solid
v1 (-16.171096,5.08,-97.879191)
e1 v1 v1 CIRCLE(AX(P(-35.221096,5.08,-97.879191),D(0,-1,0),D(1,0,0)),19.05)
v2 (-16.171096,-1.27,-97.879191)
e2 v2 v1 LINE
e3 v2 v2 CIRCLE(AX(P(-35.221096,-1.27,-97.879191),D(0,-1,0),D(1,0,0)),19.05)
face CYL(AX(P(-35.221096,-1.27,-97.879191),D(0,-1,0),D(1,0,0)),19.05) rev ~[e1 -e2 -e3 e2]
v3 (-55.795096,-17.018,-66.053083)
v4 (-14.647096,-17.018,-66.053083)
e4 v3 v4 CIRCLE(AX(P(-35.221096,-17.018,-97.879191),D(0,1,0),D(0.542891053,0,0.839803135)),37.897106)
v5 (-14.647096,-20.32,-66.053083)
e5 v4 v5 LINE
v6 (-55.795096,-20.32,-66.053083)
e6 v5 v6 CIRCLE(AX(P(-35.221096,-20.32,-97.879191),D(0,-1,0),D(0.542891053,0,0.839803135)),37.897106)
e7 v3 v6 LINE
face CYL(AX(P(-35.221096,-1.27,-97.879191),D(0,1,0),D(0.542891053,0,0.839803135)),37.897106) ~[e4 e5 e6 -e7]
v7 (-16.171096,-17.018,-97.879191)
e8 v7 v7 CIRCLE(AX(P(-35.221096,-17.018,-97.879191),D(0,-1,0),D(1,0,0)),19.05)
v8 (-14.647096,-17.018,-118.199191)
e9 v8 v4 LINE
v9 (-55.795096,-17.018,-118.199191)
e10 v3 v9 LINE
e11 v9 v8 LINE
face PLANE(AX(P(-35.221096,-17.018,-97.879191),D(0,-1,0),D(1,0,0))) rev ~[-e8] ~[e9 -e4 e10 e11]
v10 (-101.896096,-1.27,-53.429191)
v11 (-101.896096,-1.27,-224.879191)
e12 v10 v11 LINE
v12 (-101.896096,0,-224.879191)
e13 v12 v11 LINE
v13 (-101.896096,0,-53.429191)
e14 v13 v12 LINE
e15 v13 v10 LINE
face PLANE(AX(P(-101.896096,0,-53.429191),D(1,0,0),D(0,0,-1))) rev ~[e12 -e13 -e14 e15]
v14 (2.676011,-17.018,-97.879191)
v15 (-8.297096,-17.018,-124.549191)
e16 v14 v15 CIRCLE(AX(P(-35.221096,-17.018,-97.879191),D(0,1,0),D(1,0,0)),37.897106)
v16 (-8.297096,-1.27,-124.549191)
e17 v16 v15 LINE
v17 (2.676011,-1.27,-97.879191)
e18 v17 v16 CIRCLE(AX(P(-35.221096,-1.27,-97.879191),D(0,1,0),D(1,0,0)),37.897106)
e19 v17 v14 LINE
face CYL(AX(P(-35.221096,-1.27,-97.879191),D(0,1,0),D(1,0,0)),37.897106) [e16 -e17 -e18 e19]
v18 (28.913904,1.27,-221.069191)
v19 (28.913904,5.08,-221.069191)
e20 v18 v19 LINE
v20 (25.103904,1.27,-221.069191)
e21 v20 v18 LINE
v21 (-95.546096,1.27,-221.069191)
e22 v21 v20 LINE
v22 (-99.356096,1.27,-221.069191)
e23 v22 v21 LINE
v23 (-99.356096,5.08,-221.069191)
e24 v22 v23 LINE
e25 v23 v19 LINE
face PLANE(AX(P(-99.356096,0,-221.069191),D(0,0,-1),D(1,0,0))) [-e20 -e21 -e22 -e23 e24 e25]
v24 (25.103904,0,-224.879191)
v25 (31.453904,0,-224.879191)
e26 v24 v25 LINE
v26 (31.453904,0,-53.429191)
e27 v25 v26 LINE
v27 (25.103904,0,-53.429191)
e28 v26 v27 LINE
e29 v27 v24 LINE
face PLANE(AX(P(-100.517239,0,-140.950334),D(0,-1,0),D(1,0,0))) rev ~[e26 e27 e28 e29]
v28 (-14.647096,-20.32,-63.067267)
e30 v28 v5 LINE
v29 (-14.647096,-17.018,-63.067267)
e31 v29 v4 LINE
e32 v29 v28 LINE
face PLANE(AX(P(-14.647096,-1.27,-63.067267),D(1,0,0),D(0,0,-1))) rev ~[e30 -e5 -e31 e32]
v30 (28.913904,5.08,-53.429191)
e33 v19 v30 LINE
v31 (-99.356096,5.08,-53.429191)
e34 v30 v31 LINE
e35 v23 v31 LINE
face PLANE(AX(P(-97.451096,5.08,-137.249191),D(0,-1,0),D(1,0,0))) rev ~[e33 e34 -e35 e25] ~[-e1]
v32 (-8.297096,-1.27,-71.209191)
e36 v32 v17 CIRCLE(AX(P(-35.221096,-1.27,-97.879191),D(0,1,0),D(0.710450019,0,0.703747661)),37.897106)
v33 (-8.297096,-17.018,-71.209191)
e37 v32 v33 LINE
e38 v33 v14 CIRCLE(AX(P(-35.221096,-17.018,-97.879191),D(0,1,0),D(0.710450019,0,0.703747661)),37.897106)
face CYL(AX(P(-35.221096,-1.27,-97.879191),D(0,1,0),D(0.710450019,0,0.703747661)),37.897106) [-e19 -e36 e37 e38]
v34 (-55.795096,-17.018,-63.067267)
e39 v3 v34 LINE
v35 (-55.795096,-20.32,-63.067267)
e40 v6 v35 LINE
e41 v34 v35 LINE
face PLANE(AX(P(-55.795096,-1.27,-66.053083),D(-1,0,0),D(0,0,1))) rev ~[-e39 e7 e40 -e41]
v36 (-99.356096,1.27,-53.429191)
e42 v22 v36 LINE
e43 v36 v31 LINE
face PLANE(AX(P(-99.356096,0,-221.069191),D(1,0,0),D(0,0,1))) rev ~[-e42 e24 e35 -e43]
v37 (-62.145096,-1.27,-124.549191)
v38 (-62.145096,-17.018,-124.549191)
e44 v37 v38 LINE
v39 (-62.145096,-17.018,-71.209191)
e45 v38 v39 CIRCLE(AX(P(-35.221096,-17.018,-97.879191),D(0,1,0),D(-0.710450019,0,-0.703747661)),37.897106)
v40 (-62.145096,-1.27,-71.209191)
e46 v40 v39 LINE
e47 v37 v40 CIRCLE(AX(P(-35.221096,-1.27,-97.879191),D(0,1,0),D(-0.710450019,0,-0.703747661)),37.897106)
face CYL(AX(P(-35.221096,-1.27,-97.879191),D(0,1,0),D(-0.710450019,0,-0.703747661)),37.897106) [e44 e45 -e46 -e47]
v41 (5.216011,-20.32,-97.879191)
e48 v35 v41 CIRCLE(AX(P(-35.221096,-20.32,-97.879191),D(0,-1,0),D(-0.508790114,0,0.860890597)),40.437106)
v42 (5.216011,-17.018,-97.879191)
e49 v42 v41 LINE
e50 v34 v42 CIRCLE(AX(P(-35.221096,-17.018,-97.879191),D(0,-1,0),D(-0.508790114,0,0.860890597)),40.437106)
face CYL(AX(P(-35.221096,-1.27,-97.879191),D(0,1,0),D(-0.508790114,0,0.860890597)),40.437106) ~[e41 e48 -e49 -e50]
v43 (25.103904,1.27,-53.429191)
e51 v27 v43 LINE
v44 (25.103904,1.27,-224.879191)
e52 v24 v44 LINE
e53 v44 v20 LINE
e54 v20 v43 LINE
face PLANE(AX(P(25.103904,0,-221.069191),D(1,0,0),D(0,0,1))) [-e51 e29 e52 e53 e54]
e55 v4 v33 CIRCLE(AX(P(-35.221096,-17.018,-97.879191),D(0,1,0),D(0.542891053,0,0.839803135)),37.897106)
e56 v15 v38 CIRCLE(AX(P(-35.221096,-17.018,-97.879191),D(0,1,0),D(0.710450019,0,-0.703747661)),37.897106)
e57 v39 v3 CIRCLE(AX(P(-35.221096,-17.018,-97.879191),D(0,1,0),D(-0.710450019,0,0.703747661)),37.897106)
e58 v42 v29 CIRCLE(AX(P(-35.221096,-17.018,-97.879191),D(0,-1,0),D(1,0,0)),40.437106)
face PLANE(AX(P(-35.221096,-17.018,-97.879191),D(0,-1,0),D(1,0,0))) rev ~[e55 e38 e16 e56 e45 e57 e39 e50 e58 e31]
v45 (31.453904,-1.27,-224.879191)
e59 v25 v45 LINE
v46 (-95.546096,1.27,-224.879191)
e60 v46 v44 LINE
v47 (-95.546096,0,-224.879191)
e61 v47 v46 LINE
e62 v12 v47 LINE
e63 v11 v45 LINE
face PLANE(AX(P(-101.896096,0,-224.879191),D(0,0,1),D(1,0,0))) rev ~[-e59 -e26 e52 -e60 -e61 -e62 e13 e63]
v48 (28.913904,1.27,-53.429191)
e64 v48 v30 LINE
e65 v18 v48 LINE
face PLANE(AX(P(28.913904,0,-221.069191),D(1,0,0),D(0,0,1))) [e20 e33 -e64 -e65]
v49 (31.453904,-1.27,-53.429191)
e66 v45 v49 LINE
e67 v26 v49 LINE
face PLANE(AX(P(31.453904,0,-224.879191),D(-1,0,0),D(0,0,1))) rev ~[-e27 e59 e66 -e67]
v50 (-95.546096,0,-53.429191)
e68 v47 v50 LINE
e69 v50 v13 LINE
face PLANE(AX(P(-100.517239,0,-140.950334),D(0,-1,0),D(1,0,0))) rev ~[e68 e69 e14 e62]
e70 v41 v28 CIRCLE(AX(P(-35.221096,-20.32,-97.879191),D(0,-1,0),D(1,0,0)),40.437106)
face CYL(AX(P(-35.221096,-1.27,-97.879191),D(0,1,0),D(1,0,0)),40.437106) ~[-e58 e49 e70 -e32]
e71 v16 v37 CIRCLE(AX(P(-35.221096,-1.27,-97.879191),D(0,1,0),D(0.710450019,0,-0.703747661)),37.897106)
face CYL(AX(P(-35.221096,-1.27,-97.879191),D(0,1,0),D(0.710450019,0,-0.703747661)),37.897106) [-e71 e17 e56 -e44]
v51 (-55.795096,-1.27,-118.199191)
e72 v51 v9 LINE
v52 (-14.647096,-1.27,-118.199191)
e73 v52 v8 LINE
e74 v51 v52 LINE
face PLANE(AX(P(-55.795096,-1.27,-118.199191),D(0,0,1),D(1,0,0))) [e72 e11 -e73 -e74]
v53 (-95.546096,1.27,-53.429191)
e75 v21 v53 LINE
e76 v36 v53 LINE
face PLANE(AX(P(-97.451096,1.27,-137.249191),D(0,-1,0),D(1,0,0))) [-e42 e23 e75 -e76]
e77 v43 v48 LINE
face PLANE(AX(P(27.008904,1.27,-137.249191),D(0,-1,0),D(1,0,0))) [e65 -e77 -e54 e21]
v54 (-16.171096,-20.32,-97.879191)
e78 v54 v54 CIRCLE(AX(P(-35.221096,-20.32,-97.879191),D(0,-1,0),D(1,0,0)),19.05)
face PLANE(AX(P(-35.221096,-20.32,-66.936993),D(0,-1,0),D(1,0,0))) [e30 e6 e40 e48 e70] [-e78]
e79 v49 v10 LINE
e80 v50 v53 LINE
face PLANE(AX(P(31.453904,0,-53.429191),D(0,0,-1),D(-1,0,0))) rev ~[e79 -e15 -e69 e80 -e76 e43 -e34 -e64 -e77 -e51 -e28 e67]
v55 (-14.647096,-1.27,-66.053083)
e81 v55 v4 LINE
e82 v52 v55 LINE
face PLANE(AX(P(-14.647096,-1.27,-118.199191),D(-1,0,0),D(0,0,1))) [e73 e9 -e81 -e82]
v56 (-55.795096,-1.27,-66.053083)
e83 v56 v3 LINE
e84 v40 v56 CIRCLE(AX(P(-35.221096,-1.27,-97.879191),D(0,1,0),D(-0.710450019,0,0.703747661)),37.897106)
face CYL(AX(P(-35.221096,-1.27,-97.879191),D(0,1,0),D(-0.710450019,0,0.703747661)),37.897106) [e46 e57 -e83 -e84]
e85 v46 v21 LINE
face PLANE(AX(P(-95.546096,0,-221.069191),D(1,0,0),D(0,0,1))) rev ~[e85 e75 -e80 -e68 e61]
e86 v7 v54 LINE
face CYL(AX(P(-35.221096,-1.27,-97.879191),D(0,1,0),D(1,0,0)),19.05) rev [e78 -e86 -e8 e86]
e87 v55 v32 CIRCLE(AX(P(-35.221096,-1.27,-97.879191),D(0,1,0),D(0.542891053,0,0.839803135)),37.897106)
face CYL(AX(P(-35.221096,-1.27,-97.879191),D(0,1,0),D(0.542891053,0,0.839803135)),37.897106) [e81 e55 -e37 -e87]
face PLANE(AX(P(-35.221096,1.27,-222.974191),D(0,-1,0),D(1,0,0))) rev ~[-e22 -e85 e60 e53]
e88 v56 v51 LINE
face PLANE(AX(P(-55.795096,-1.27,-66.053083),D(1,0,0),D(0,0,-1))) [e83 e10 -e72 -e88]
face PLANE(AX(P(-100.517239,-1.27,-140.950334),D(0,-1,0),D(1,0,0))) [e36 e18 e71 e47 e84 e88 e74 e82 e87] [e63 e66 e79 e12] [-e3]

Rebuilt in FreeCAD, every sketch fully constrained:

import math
import FreeCAD as App
import Part
import Sketcher

V = App.Vector
Q = App.Units.Quantity

doc = App.newDocument("Part")
body = doc.addObject("PartDesign::Body", "Body")

# Sketch on XZ plane
sketch1 = body.newObject("Sketcher::SketchObject", "Sketch")
sketch1.AttachmentSupport = (doc.getObject("XZ_Plane"), [""])
sketch1.MapMode = "FlatFace"
sketch1.addGeometry(Part.LineSegment(V(-99.356096, -53.429191, 0), V(-99.356096, -221.069191, 0)), False)
sketch1.addGeometry(Part.LineSegment(V(-99.356096, -221.069191, 0), V(28.913904, -221.069191, 0)), False)
sketch1.addGeometry(Part.LineSegment(V(28.913904, -221.069191, 0), V(28.913904, -53.429191, 0)), False)
sketch1.addGeometry(Part.LineSegment(V(28.913904, -53.429191, 0), V(-99.356096, -53.429191, 0)), False)
sketch1.addConstraint(Sketcher.Constraint("Coincident", 0, 2, 1, 1))
sketch1.addConstraint(Sketcher.Constraint("Coincident", 1, 2, 2, 1))
sketch1.addConstraint(Sketcher.Constraint("Coincident", 2, 2, 3, 1))
sketch1.addConstraint(Sketcher.Constraint("Coincident", 3, 2, 0, 1))
sketch1.addConstraint(Sketcher.Constraint("Vertical", 0))
sketch1.addConstraint(Sketcher.Constraint("Horizontal", 1))
sketch1.addConstraint(Sketcher.Constraint("Vertical", 2))
sketch1.addConstraint(Sketcher.Constraint("Horizontal", 3))
sketch1.addConstraint(Sketcher.Constraint("DistanceY", 0, 2, 0, 1, Q("6.6 in")))
sketch1.addConstraint(Sketcher.Constraint("DistanceX", 1, 1, 1, 2, Q("5.05 in")))
sketch1.addConstraint(Sketcher.Constraint("DistanceY", 0, 2, -1, 1, Q("221.069191 mm")))
sketch1.addConstraint(Sketcher.Constraint("DistanceX", 0, 2, -1, 1, Q("99.356096 mm")))
pad1 = body.newObject("PartDesign::Pad", "Pad")
pad1.Profile = sketch1
pad1.Length = Q("0.2 in")
pad1.Reversed = True

# Sketch on XZ plane
sketch2 = body.newObject("Sketcher::SketchObject", "Sketch001")
sketch2.AttachmentSupport = (doc.getObject("XZ_Plane"), [""])
sketch2.MapMode = "FlatFace"
sketch2.addGeometry(Part.LineSegment(V(-95.546096, -221.069191, 0), V(-95.546096, -224.879191, 0)), False)
sketch2.addGeometry(Part.LineSegment(V(-95.546096, -224.879191, 0), V(25.103904, -224.879191, 0)), False)
sketch2.addGeometry(Part.LineSegment(V(25.103904, -224.879191, 0), V(25.103904, -221.069191, 0)), False)
sketch2.addGeometry(Part.LineSegment(V(25.103904, -221.069191, 0), V(-95.546096, -221.069191, 0)), False)
sketch2.addConstraint(Sketcher.Constraint("Coincident", 0, 2, 1, 1))
sketch2.addConstraint(Sketcher.Constraint("Coincident", 1, 2, 2, 1))
sketch2.addConstraint(Sketcher.Constraint("Coincident", 2, 2, 3, 1))
sketch2.addConstraint(Sketcher.Constraint("Coincident", 3, 2, 0, 1))
sketch2.addConstraint(Sketcher.Constraint("Vertical", 0))
sketch2.addConstraint(Sketcher.Constraint("Horizontal", 1))
sketch2.addConstraint(Sketcher.Constraint("Vertical", 2))
sketch2.addConstraint(Sketcher.Constraint("Horizontal", 3))
sketch2.addConstraint(Sketcher.Constraint("DistanceX", 1, 1, 1, 2, Q("4.75 in")))
sketch2.addConstraint(Sketcher.Constraint("DistanceY", 0, 2, 0, 1, Q("0.15 in")))
sketch2.addConstraint(Sketcher.Constraint("DistanceY", 0, 2, -1, 1, Q("224.879191 mm")))
sketch2.addConstraint(Sketcher.Constraint("DistanceX", 0, 2, -1, 1, Q("95.546096 mm")))
pad2 = body.newObject("PartDesign::Pad", "Pad001")
pad2.Profile = sketch2
pad2.Length = Q("0.05 in")
pad2.Reversed = True

# Sketch on XZ plane
sketch3 = body.newObject("Sketcher::SketchObject", "Sketch002")
sketch3.AttachmentSupport = (doc.getObject("XZ_Plane"), [""])
sketch3.MapMode = "FlatFace"
sketch3.addGeometry(Part.LineSegment(V(-99.356096, -53.429191, 0), V(-99.356096, -221.069191, 0)), False)
sketch3.addGeometry(Part.LineSegment(V(-99.356096, -221.069191, 0), V(-95.546096, -221.069191, 0)), False)
sketch3.addGeometry(Part.LineSegment(V(-95.546096, -221.069191, 0), V(-95.546096, -53.429191, 0)), False)
sketch3.addGeometry(Part.LineSegment(V(-95.546096, -53.429191, 0), V(-99.356096, -53.429191, 0)), False)
sketch3.addGeometry(Part.LineSegment(V(25.103904, -53.429191, 0), V(25.103904, -221.069191, 0)), False)
sketch3.addGeometry(Part.LineSegment(V(25.103904, -221.069191, 0), V(28.913904, -221.069191, 0)), False)
sketch3.addGeometry(Part.LineSegment(V(28.913904, -221.069191, 0), V(28.913904, -53.429191, 0)), False)
sketch3.addGeometry(Part.LineSegment(V(28.913904, -53.429191, 0), V(25.103904, -53.429191, 0)), False)
sketch3.addConstraint(Sketcher.Constraint("Coincident", 0, 2, 1, 1))
sketch3.addConstraint(Sketcher.Constraint("Coincident", 1, 2, 2, 1))
sketch3.addConstraint(Sketcher.Constraint("Coincident", 2, 2, 3, 1))
sketch3.addConstraint(Sketcher.Constraint("Coincident", 3, 2, 0, 1))
sketch3.addConstraint(Sketcher.Constraint("Coincident", 4, 2, 5, 1))
sketch3.addConstraint(Sketcher.Constraint("Coincident", 5, 2, 6, 1))
sketch3.addConstraint(Sketcher.Constraint("Coincident", 6, 2, 7, 1))
sketch3.addConstraint(Sketcher.Constraint("Coincident", 7, 2, 4, 1))
sketch3.addConstraint(Sketcher.Constraint("Vertical", 0))
sketch3.addConstraint(Sketcher.Constraint("Horizontal", 1))
sketch3.addConstraint(Sketcher.Constraint("Vertical", 2))
sketch3.addConstraint(Sketcher.Constraint("Horizontal", 3))
sketch3.addConstraint(Sketcher.Constraint("Vertical", 4))
sketch3.addConstraint(Sketcher.Constraint("Horizontal", 5))
sketch3.addConstraint(Sketcher.Constraint("Vertical", 6))
sketch3.addConstraint(Sketcher.Constraint("Horizontal", 7))
sketch3.addConstraint(Sketcher.Constraint("Horizontal", 1, 2, 4, 2))
sketch3.addConstraint(Sketcher.Constraint("Horizontal", 3, 2, 6, 2))
sketch3.addConstraint(Sketcher.Constraint("Equal", 3, 5))
sketch3.addConstraint(Sketcher.Constraint("DistanceY", 0, 2, 0, 1, Q("6.6 in")))
sketch3.addConstraint(Sketcher.Constraint("DistanceX", 1, 1, 1, 2, Q("0.15 in")))
sketch3.addConstraint(Sketcher.Constraint("DistanceX", 0, 2, 4, 2, Q("4.9 in")))
sketch3.addConstraint(Sketcher.Constraint("DistanceY", 0, 2, -1, 1, Q("221.069191 mm")))
sketch3.addConstraint(Sketcher.Constraint("DistanceX", 0, 2, -1, 1, Q("99.356096 mm")))
pocket1 = body.newObject("PartDesign::Pocket", "Pocket")
pocket1.Profile = sketch3
pocket1.Length = Q("0.05 in")

# Sketch on XZ plane
sketch4 = body.newObject("Sketcher::SketchObject", "Sketch003")
sketch4.AttachmentSupport = (doc.getObject("XZ_Plane"), [""])
sketch4.MapMode = "FlatFace"
sketch4.addGeometry(Part.LineSegment(V(-101.896096, -53.429191, 0), V(-101.896096, -224.879191, 0)), False)
sketch4.addGeometry(Part.LineSegment(V(-101.896096, -224.879191, 0), V(31.453904, -224.879191, 0)), False)
sketch4.addGeometry(Part.LineSegment(V(31.453904, -224.879191, 0), V(31.453904, -53.429191, 0)), False)
sketch4.addGeometry(Part.LineSegment(V(31.453904, -53.429191, 0), V(-101.896096, -53.429191, 0)), False)
sketch4.addConstraint(Sketcher.Constraint("Coincident", 0, 2, 1, 1))
sketch4.addConstraint(Sketcher.Constraint("Coincident", 1, 2, 2, 1))
sketch4.addConstraint(Sketcher.Constraint("Coincident", 2, 2, 3, 1))
sketch4.addConstraint(Sketcher.Constraint("Coincident", 3, 2, 0, 1))
sketch4.addConstraint(Sketcher.Constraint("Vertical", 0))
sketch4.addConstraint(Sketcher.Constraint("Horizontal", 1))
sketch4.addConstraint(Sketcher.Constraint("Vertical", 2))
sketch4.addConstraint(Sketcher.Constraint("Horizontal", 3))
sketch4.addConstraint(Sketcher.Constraint("DistanceX", 1, 1, 1, 2, Q("5.25 in")))
sketch4.addConstraint(Sketcher.Constraint("DistanceY", 0, 2, 0, 1, Q("6.75 in")))
sketch4.addConstraint(Sketcher.Constraint("DistanceY", 0, 2, -1, 1, Q("224.879191 mm")))
sketch4.addConstraint(Sketcher.Constraint("DistanceX", 0, 2, -1, 1, Q("101.896096 mm")))
pad3 = body.newObject("PartDesign::Pad", "Pad002")
pad3.Profile = sketch4
pad3.Length = Q("0.05 in")

# Sketch on XZ plane
sketch5 = body.newObject("Sketcher::SketchObject", "Sketch004")
sketch5.AttachmentSupport = (doc.getObject("XZ_Plane"), [""])
sketch5.MapMode = "FlatFace"
sketch5.AttachmentOffset = App.Placement(V(0, 0, 0.05 * 25.4), App.Rotation())
sketch5.addGeometry(Part.ArcOfCircle(Part.Circle(V(-35.221096, -97.879191, 0), V(0, 0, 1), 37.897106), math.radians(57.119337), math.radians(122.880663)), False)
sketch5.addGeometry(Part.LineSegment(V(-55.795096, -66.053083, 0), V(-55.795096, -63.067267, 0)), False)
sketch5.addGeometry(Part.ArcOfCircle(Part.Circle(V(-35.221096, -97.879191, 0), V(0, 0, 1), 40.437106), math.radians(120.583273), math.radians(360)), False)
sketch5.addGeometry(Part.ArcOfCircle(Part.Circle(V(-35.221096, -97.879191, 0), V(0, 0, 1), 40.437106), math.radians(0), math.radians(59.416727)), False)
sketch5.addGeometry(Part.LineSegment(V(-14.647096, -63.067267, 0), V(-14.647096, -66.053083, 0)), False)
sketch5.addGeometry(Part.Circle(V(-35.221096, -97.879191, 0), V(0, 0, 1), 19.05), False)
sketch5.addConstraint(Sketcher.Constraint("Coincident", 0, 2, 1, 1))
sketch5.addConstraint(Sketcher.Constraint("Coincident", 1, 2, 2, 1))
sketch5.addConstraint(Sketcher.Constraint("Tangent", 2, 2, 3, 1))
sketch5.addConstraint(Sketcher.Constraint("Coincident", 3, 2, 4, 1))
sketch5.addConstraint(Sketcher.Constraint("Coincident", 4, 2, 0, 1))
sketch5.addConstraint(Sketcher.Constraint("Vertical", 1))
sketch5.addConstraint(Sketcher.Constraint("Vertical", 4))
sketch5.addConstraint(Sketcher.Constraint("Coincident", 2, 3, 0, 3))
sketch5.addConstraint(Sketcher.Constraint("Coincident", 5, 3, 0, 3))
sketch5.addConstraint(Sketcher.Constraint("Equal", 2, 3))
sketch5.addConstraint(Sketcher.Constraint("Horizontal", 5, 3, 2, 2))
sketch5.addConstraint(Sketcher.Constraint("Horizontal", 1, 2, 3, 2))
sketch5.addConstraint(Sketcher.Constraint("Diameter", 5, Q("1.5 in")))
sketch5.addConstraint(Sketcher.Constraint("DistanceX", 0, 2, 0, 3, Q("0.81 in")))
sketch5.addConstraint(Sketcher.Constraint("Radius", 0, Q("37.897106 mm")))
sketch5.addConstraint(Sketcher.Constraint("Radius", 2, Q("40.437106 mm")))
sketch5.addConstraint(Sketcher.Constraint("DistanceY", 0, 3, -1, 1, Q("97.879191 mm")))
sketch5.addConstraint(Sketcher.Constraint("DistanceX", -1, 1, 2, 2, Q("5.216011 mm")))
pad4 = body.newObject("PartDesign::Pad", "Pad003")
pad4.Profile = sketch5
pad4.Length = Q("0.75 in")

# Sketch on XZ plane
sketch6 = body.newObject("Sketcher::SketchObject", "Sketch005")
sketch6.AttachmentSupport = (doc.getObject("XZ_Plane"), [""])
sketch6.MapMode = "FlatFace"
sketch6.AttachmentOffset = App.Placement(V(0, 0, 0.05 * 25.4), App.Rotation())
sketch6.addGeometry(Part.ArcOfCircle(Part.Circle(V(-35.221096, -97.879191, 0), V(0, 0, 1), 40.437106), math.radians(59.416727), math.radians(120.583273)), False)
sketch6.addGeometry(Part.ArcOfCircle(Part.Circle(V(-35.221096, -97.879191, 0), V(0, 0, 1), 40.437106), math.radians(120.583273), math.radians(360)), False)
sketch6.addGeometry(Part.ArcOfCircle(Part.Circle(V(-35.221096, -97.879191, 0), V(0, 0, 1), 40.437106), math.radians(0), math.radians(59.416727)), False)
sketch6.addGeometry(Part.LineSegment(V(-55.795096, -118.199191, 0), V(-14.647096, -118.199191, 0)), False)
sketch6.addGeometry(Part.LineSegment(V(-14.647096, -118.199191, 0), V(-14.647096, -66.053083, 0)), False)
sketch6.addGeometry(Part.ArcOfCircle(Part.Circle(V(-35.221096, -97.879191, 0), V(0, 0, 1), 37.897106), math.radians(44.728458), math.radians(57.119337)), False)
sketch6.addGeometry(Part.ArcOfCircle(Part.Circle(V(-35.221096, -97.879191, 0), V(0, 0, 1), 37.897106), math.radians(0), math.radians(44.728458)), False)
sketch6.addGeometry(Part.ArcOfCircle(Part.Circle(V(-35.221096, -97.879191, 0), V(0, 0, 1), 37.897106), math.radians(-44.728458), math.radians(0)), False)
sketch6.addGeometry(Part.ArcOfCircle(Part.Circle(V(-35.221096, -97.879191, 0), V(0, 0, 1), 37.897106), math.radians(-135.271542), math.radians(-44.728458)), False)
sketch6.addGeometry(Part.ArcOfCircle(Part.Circle(V(-35.221096, -97.879191, 0), V(0, 0, 1), 37.897106), math.radians(135.271542), math.radians(224.728458)), False)
sketch6.addGeometry(Part.ArcOfCircle(Part.Circle(V(-35.221096, -97.879191, 0), V(0, 0, 1), 37.897106), math.radians(122.880663), math.radians(135.271542)), False)
sketch6.addGeometry(Part.LineSegment(V(-55.795096, -66.053083, 0), V(-55.795096, -118.199191, 0)), False)
sketch6.addGeometry(Part.Circle(V(-35.221096, -97.879191, 0), V(0, 0, 1), 19.05), False)
sketch6.addConstraint(Sketcher.Constraint("Tangent", 0, 2, 1, 1))
sketch6.addConstraint(Sketcher.Constraint("Tangent", 1, 2, 2, 1))
sketch6.addConstraint(Sketcher.Constraint("Tangent", 2, 2, 0, 1))
sketch6.addConstraint(Sketcher.Constraint("Coincident", 3, 2, 4, 1))
sketch6.addConstraint(Sketcher.Constraint("Coincident", 4, 2, 5, 2))
sketch6.addConstraint(Sketcher.Constraint("Tangent", 5, 1, 6, 2))
sketch6.addConstraint(Sketcher.Constraint("Tangent", 6, 1, 7, 2))
sketch6.addConstraint(Sketcher.Constraint("Tangent", 7, 1, 8, 2))
sketch6.addConstraint(Sketcher.Constraint("Tangent", 8, 1, 9, 2))
sketch6.addConstraint(Sketcher.Constraint("Tangent", 9, 1, 10, 2))
sketch6.addConstraint(Sketcher.Constraint("Coincident", 10, 1, 11, 1))
sketch6.addConstraint(Sketcher.Constraint("Coincident", 11, 2, 3, 1))
sketch6.addConstraint(Sketcher.Constraint("Horizontal", 3))
sketch6.addConstraint(Sketcher.Constraint("Vertical", 4))
sketch6.addConstraint(Sketcher.Constraint("Vertical", 11))
sketch6.addConstraint(Sketcher.Constraint("Coincident", 5, 3, 0, 3))
sketch6.addConstraint(Sketcher.Constraint("Coincident", 7, 3, 0, 3))
sketch6.addConstraint(Sketcher.Constraint("Coincident", 9, 3, 0, 3))
sketch6.addConstraint(Sketcher.Constraint("Coincident", 12, 3, 0, 3))
sketch6.addConstraint(Sketcher.Constraint("Equal", 9, 10))
sketch6.addConstraint(Sketcher.Constraint("Horizontal", 12, 3, 1, 2))
sketch6.addConstraint(Sketcher.Constraint("Horizontal", 0, 2, 2, 2))
sketch6.addConstraint(Sketcher.Constraint("Horizontal", 1, 2, 6, 1))
sketch6.addConstraint(Sketcher.Constraint("Horizontal", 7, 1, 8, 1))
sketch6.addConstraint(Sketcher.Constraint("Horizontal", 5, 1, 9, 1))
sketch6.addConstraint(Sketcher.Constraint("Horizontal", 4, 2, 10, 1))
sketch6.addConstraint(Sketcher.Constraint("Vertical", 2, 2, 3, 2))
sketch6.addConstraint(Sketcher.Constraint("Vertical", 5, 1, 7, 1))
sketch6.addConstraint(Sketcher.Constraint("Diameter", 12, Q("1.5 in")))
sketch6.addConstraint(Sketcher.Constraint("DistanceX", 3, 1, 3, 2, Q("1.62 in")))
sketch6.addConstraint(Sketcher.Constraint("DistanceY", 3, 2, 1, 2, Q("0.8 in")))
sketch6.addConstraint(Sketcher.Constraint("DistanceX", 6, 1, 1, 2, Q("0.1 in")))
sketch6.addConstraint(Sketcher.Constraint("DistanceX", 4, 2, 5, 1, Q("0.25 in")))
sketch6.addConstraint(Sketcher.Constraint("DistanceY", 1, 2, 5, 1, Q("1.05 in")))
sketch6.addConstraint(Sketcher.Constraint("DistanceY", 0, 3, -1, 1, Q("97.879191 mm")))
sketch6.addConstraint(Sketcher.Constraint("DistanceX", -1, 1, 1, 2, Q("5.216011 mm")))
pocket2 = body.newObject("PartDesign::Pocket", "Pocket001")
pocket2.Profile = sketch6
pocket2.Length = Q("0.62 in")
pocket2.Reversed = True

# Sketch on XZ plane
sketch7 = body.newObject("Sketcher::SketchObject", "Sketch006")
sketch7.AttachmentSupport = (doc.getObject("XZ_Plane"), [""])
sketch7.MapMode = "FlatFace"
sketch7.AttachmentOffset = App.Placement(V(0, 0, 0.05 * 25.4), App.Rotation())
sketch7.addGeometry(Part.Circle(V(-35.221096, -97.879191, 0), V(0, 0, 1), 19.05), False)
sketch7.addConstraint(Sketcher.Constraint("Diameter", 0, Q("1.5 in")))
sketch7.addConstraint(Sketcher.Constraint("DistanceY", 0, 3, -1, 1, Q("97.879191 mm")))
sketch7.addConstraint(Sketcher.Constraint("DistanceX", 0, 3, -1, 1, Q("35.221096 mm")))
pocket3 = body.newObject("PartDesign::Pocket", "Pocket002")
pocket3.Profile = sketch7
pocket3.Length = Q("0.25 in")

doc.recompute()
